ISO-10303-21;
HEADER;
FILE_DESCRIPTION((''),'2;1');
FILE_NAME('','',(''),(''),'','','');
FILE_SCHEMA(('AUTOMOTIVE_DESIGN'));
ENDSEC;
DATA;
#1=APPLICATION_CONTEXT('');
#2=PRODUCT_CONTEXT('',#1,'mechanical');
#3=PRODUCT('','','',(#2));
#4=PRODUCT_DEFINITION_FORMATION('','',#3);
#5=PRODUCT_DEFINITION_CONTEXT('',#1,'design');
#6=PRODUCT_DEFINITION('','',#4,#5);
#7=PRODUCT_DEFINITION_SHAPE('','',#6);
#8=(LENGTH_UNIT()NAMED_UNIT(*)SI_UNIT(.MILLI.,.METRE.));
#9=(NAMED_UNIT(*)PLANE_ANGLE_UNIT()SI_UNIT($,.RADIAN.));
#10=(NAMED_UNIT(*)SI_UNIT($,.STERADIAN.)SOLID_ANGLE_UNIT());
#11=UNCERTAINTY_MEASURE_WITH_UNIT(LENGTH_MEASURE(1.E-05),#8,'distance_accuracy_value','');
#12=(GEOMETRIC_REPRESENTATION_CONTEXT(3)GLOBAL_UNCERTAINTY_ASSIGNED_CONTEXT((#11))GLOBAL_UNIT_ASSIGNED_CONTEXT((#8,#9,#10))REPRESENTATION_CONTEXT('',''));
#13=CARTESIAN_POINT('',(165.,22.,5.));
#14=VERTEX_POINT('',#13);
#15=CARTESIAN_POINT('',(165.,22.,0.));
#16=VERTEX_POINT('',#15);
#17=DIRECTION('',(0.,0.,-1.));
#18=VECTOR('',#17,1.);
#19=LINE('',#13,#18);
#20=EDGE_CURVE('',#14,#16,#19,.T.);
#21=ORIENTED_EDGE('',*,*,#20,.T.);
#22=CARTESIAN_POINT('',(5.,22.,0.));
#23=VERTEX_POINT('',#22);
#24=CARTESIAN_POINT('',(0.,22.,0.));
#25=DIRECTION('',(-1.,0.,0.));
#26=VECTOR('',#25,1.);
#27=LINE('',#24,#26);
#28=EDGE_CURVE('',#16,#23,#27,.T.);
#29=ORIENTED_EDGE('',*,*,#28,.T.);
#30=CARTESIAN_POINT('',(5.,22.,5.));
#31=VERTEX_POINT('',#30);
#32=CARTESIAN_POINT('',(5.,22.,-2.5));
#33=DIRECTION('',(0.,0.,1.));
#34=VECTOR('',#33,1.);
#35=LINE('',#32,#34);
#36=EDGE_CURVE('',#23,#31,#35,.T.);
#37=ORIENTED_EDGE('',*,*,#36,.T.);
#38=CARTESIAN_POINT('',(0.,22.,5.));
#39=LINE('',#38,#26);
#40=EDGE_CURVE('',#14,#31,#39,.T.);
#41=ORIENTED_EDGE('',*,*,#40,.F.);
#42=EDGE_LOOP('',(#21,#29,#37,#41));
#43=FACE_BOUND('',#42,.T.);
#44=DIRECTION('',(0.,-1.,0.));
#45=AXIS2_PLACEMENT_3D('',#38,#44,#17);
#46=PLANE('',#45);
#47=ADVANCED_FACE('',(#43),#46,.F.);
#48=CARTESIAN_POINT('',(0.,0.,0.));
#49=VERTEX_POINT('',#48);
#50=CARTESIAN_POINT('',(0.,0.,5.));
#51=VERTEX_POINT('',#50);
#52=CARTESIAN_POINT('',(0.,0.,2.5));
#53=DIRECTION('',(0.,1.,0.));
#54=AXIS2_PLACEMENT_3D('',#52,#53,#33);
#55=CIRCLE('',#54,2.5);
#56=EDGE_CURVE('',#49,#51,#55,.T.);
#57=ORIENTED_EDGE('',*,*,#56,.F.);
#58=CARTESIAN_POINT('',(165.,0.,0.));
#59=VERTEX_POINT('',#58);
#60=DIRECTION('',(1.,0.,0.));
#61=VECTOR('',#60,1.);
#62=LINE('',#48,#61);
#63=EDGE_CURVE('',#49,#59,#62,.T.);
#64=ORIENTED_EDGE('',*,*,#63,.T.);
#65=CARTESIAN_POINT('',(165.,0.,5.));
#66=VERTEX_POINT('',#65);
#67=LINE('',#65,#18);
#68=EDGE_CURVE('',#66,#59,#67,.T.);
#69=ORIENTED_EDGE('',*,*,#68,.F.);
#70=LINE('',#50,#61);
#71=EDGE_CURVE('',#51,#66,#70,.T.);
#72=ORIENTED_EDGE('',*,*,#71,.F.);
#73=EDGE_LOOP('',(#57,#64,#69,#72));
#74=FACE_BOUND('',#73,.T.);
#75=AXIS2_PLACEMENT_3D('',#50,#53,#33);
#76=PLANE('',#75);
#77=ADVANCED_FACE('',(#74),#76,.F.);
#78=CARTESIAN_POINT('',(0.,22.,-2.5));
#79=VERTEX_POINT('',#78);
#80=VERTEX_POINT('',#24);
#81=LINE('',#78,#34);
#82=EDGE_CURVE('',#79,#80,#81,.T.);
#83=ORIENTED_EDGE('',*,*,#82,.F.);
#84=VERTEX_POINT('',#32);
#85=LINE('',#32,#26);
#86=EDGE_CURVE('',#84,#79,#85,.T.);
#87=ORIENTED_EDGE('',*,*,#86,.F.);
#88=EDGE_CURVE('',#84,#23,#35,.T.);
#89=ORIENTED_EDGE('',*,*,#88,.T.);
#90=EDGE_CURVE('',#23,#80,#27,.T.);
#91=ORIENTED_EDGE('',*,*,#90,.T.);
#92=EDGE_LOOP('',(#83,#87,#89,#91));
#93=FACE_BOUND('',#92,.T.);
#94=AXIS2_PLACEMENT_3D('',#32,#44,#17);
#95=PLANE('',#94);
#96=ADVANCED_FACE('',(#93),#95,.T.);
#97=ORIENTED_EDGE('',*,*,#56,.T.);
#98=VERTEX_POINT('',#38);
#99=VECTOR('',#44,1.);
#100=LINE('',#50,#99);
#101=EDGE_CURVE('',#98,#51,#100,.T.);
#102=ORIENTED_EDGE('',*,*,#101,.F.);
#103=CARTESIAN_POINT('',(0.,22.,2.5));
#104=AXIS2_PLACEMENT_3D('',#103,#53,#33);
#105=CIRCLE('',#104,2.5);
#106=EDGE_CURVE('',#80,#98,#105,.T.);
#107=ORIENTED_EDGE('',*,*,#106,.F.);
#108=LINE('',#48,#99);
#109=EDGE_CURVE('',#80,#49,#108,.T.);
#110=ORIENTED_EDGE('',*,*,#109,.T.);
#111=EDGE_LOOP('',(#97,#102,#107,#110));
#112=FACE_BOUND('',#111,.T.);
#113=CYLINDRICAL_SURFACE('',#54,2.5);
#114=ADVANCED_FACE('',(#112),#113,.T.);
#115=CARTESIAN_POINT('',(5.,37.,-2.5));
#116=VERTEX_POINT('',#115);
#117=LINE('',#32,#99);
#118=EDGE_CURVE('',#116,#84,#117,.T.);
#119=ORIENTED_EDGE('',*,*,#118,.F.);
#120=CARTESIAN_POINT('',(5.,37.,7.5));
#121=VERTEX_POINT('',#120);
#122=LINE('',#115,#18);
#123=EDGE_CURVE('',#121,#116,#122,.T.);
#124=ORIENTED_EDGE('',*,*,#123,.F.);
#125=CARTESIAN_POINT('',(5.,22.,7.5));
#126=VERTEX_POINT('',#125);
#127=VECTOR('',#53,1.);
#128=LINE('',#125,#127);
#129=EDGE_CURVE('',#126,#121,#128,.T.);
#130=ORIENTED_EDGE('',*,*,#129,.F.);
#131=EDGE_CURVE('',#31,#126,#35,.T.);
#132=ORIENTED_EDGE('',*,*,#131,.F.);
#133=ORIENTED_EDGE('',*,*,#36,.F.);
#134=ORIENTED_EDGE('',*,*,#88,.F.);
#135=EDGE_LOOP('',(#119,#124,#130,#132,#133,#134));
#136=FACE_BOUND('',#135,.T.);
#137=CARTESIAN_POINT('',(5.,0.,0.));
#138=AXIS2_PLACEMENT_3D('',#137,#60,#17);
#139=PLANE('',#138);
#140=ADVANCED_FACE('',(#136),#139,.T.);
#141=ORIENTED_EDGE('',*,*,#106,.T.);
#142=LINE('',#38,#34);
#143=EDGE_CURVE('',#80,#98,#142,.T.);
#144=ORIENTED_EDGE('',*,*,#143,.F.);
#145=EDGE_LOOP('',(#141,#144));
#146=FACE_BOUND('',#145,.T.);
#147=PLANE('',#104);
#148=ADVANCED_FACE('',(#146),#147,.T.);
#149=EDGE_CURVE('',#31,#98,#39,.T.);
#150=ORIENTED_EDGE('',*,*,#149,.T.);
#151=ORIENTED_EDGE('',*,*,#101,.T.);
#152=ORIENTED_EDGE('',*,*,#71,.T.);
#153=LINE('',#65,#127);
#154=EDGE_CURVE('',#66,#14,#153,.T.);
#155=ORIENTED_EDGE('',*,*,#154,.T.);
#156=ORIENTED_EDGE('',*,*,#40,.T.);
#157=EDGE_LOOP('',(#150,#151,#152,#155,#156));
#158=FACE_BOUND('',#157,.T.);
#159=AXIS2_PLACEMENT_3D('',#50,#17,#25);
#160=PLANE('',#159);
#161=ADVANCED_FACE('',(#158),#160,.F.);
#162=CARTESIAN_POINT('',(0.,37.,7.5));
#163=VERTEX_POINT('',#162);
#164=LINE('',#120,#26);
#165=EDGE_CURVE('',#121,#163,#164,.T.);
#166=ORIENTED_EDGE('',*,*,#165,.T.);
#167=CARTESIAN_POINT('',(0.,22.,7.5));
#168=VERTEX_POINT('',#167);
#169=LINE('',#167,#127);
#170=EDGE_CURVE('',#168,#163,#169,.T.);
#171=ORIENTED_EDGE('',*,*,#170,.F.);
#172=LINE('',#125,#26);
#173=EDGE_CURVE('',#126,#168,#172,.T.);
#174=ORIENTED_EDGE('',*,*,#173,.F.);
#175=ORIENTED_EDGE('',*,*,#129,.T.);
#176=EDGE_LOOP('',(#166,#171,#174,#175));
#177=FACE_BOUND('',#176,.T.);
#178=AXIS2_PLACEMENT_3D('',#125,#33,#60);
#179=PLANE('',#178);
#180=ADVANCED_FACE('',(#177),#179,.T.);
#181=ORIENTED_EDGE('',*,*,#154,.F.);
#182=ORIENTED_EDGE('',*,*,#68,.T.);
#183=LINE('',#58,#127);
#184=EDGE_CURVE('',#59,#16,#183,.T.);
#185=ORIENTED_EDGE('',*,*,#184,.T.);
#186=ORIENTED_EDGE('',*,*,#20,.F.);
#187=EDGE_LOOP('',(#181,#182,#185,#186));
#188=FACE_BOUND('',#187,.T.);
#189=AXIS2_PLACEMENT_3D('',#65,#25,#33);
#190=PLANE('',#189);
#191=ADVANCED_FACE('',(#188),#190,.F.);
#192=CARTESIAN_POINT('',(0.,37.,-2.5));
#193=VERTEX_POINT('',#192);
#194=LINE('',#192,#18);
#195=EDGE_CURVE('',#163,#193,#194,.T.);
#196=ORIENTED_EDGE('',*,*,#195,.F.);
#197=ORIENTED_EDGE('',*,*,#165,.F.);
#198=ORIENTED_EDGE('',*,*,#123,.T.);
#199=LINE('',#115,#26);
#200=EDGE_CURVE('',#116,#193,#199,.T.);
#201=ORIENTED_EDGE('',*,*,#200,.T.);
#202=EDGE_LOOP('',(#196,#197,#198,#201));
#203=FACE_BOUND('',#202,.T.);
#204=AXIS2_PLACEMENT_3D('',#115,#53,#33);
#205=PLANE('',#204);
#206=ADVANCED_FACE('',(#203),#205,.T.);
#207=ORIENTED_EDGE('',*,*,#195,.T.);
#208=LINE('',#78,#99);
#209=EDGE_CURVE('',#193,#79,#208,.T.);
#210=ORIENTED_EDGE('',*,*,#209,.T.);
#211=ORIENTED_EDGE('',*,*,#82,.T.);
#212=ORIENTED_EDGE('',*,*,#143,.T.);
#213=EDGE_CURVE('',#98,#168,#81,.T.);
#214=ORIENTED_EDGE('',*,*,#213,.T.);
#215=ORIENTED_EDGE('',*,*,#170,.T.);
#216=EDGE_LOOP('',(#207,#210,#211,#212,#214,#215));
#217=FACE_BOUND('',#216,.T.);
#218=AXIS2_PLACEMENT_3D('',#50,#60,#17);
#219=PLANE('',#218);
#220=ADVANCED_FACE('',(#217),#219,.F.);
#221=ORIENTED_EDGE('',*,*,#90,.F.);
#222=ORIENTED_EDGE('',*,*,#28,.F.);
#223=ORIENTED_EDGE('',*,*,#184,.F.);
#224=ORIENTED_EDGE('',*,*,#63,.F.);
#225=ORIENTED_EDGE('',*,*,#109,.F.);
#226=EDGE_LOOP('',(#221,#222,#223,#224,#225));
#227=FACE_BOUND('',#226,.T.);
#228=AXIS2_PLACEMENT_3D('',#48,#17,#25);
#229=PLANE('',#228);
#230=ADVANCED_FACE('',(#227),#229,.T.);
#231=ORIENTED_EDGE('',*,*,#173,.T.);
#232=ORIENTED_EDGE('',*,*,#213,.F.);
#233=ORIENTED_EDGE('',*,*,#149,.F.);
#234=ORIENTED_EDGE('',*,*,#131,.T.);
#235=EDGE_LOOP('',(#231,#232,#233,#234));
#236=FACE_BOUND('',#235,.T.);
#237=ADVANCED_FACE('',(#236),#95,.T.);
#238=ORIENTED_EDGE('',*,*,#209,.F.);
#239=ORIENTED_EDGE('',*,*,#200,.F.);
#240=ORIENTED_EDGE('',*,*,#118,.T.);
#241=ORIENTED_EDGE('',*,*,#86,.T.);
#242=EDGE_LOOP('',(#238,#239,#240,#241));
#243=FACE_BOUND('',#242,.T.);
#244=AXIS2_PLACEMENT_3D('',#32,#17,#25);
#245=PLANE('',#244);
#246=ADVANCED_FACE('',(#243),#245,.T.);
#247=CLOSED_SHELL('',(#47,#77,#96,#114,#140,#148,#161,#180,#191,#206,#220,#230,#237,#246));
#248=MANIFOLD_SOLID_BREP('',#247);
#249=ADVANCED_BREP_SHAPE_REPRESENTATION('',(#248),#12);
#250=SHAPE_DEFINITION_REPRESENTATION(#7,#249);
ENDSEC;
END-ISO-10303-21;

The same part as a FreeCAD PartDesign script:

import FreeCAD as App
import Part
import Sketcher
Q = App.Units.Quantity


def add_polygon(sketch, points):
    """Adds a closed chain of lines whose ends are joined by coincident constraints."""
    first, n = sketch.GeometryCount, len(points)
    for a, b in zip(points, points[1:] + points[:1]):
        sketch.addGeometry(Part.LineSegment(App.Vector(*a, 0), App.Vector(*b, 0)), False)
    for i in range(n):
        sketch.addConstraint(Sketcher.Constraint("Coincident", first + i, 2, first + (i + 1) % n, 1))

doc = App.newDocument("Part")
body = doc.addObject("PartDesign::Body", "Body")

sketch1 = body.newObject("Sketcher::SketchObject", "Sketch")
sketch1.AttachmentSupport = (doc.getObject("XY_Plane"), [""])
sketch1.MapMode = "FlatFace"
add_polygon(sketch1, [(0, 22), (0, 0), (165, 0), (165, 22)])
sketch1.addConstraint(Sketcher.Constraint("Vertical", 0))
sketch1.addConstraint(Sketcher.Constraint("Horizontal", 1))
sketch1.addConstraint(Sketcher.Constraint("Vertical", 2))
sketch1.addConstraint(Sketcher.Constraint("Horizontal", 3))
sketch1.addConstraint(Sketcher.Constraint("Coincident", 0, 2, -1, 1))
sketch1.addConstraint(Sketcher.Constraint("DistanceX", 1, 1, 1, 2, Q("165 mm")))
sketch1.addConstraint(Sketcher.Constraint("DistanceY", 0, 2, 0, 1, Q("22 mm")))
pad1 = body.newObject("PartDesign::Pad", "Pad")
pad1.Profile = sketch1
pad1.Length = 5

sketch2 = body.newObject("Sketcher::SketchObject", "Sketch001")
sketch2.AttachmentSupport = (doc.getObject("YZ_Plane"), [""])
sketch2.MapMode = "FlatFace"
add_polygon(sketch2, [(37, -2), (22, -2), (22, 8), (37, 8)])
sketch2.addConstraint(Sketcher.Constraint("Horizontal", 0))
sketch2.addConstraint(Sketcher.Constraint("Vertical", 1))
sketch2.addConstraint(Sketcher.Constraint("Horizontal", 2))
sketch2.addConstraint(Sketcher.Constraint("Vertical", 3))
sketch2.addConstraint(Sketcher.Constraint("DistanceX", 0, 2, 0, 1, Q("15 mm")))
sketch2.addConstraint(Sketcher.Constraint("DistanceY", 1, 1, 1, 2, Q("10 mm")))
sketch2.addConstraint(Sketcher.Constraint("DistanceX", -1, 1, 0, 2, Q("22 mm")))
sketch2.addConstraint(Sketcher.Constraint("DistanceY", 0, 2, -1, 1, Q("2.5 mm")))
pad2 = body.newObject("PartDesign::Pad", "Pad001")
pad2.Profile = sketch2
pad2.Length = 5

sketch3 = body.newObject("Sketcher::SketchObject", "Sketch002")
sketch3.AttachmentSupport = (doc.getObject("XZ_Plane"), [""])
sketch3.MapMode = "FlatFace"
sketch3.AttachmentOffset = App.Placement(App.Vector(0, 0, -22), App.Rotation())
sketch3.addGeometry(Part.Circle(App.Vector(0, 2.5, 0), App.Vector(0, 0, 1), 2.5), False)
sketch3.addConstraint(Sketcher.Constraint("PointOnObject", 0, 3, -2))
sketch3.addConstraint(Sketcher.Constraint("Diameter", 0, Q("5 mm")))
sketch3.addConstraint(Sketcher.Constraint("DistanceY", -1, 1, 0, 3, Q("2.5 mm")))
pad3 = body.newObject("PartDesign::Pad", "Pad002")
pad3.Profile = sketch3
pad3.Length = 22

doc.recompute()
